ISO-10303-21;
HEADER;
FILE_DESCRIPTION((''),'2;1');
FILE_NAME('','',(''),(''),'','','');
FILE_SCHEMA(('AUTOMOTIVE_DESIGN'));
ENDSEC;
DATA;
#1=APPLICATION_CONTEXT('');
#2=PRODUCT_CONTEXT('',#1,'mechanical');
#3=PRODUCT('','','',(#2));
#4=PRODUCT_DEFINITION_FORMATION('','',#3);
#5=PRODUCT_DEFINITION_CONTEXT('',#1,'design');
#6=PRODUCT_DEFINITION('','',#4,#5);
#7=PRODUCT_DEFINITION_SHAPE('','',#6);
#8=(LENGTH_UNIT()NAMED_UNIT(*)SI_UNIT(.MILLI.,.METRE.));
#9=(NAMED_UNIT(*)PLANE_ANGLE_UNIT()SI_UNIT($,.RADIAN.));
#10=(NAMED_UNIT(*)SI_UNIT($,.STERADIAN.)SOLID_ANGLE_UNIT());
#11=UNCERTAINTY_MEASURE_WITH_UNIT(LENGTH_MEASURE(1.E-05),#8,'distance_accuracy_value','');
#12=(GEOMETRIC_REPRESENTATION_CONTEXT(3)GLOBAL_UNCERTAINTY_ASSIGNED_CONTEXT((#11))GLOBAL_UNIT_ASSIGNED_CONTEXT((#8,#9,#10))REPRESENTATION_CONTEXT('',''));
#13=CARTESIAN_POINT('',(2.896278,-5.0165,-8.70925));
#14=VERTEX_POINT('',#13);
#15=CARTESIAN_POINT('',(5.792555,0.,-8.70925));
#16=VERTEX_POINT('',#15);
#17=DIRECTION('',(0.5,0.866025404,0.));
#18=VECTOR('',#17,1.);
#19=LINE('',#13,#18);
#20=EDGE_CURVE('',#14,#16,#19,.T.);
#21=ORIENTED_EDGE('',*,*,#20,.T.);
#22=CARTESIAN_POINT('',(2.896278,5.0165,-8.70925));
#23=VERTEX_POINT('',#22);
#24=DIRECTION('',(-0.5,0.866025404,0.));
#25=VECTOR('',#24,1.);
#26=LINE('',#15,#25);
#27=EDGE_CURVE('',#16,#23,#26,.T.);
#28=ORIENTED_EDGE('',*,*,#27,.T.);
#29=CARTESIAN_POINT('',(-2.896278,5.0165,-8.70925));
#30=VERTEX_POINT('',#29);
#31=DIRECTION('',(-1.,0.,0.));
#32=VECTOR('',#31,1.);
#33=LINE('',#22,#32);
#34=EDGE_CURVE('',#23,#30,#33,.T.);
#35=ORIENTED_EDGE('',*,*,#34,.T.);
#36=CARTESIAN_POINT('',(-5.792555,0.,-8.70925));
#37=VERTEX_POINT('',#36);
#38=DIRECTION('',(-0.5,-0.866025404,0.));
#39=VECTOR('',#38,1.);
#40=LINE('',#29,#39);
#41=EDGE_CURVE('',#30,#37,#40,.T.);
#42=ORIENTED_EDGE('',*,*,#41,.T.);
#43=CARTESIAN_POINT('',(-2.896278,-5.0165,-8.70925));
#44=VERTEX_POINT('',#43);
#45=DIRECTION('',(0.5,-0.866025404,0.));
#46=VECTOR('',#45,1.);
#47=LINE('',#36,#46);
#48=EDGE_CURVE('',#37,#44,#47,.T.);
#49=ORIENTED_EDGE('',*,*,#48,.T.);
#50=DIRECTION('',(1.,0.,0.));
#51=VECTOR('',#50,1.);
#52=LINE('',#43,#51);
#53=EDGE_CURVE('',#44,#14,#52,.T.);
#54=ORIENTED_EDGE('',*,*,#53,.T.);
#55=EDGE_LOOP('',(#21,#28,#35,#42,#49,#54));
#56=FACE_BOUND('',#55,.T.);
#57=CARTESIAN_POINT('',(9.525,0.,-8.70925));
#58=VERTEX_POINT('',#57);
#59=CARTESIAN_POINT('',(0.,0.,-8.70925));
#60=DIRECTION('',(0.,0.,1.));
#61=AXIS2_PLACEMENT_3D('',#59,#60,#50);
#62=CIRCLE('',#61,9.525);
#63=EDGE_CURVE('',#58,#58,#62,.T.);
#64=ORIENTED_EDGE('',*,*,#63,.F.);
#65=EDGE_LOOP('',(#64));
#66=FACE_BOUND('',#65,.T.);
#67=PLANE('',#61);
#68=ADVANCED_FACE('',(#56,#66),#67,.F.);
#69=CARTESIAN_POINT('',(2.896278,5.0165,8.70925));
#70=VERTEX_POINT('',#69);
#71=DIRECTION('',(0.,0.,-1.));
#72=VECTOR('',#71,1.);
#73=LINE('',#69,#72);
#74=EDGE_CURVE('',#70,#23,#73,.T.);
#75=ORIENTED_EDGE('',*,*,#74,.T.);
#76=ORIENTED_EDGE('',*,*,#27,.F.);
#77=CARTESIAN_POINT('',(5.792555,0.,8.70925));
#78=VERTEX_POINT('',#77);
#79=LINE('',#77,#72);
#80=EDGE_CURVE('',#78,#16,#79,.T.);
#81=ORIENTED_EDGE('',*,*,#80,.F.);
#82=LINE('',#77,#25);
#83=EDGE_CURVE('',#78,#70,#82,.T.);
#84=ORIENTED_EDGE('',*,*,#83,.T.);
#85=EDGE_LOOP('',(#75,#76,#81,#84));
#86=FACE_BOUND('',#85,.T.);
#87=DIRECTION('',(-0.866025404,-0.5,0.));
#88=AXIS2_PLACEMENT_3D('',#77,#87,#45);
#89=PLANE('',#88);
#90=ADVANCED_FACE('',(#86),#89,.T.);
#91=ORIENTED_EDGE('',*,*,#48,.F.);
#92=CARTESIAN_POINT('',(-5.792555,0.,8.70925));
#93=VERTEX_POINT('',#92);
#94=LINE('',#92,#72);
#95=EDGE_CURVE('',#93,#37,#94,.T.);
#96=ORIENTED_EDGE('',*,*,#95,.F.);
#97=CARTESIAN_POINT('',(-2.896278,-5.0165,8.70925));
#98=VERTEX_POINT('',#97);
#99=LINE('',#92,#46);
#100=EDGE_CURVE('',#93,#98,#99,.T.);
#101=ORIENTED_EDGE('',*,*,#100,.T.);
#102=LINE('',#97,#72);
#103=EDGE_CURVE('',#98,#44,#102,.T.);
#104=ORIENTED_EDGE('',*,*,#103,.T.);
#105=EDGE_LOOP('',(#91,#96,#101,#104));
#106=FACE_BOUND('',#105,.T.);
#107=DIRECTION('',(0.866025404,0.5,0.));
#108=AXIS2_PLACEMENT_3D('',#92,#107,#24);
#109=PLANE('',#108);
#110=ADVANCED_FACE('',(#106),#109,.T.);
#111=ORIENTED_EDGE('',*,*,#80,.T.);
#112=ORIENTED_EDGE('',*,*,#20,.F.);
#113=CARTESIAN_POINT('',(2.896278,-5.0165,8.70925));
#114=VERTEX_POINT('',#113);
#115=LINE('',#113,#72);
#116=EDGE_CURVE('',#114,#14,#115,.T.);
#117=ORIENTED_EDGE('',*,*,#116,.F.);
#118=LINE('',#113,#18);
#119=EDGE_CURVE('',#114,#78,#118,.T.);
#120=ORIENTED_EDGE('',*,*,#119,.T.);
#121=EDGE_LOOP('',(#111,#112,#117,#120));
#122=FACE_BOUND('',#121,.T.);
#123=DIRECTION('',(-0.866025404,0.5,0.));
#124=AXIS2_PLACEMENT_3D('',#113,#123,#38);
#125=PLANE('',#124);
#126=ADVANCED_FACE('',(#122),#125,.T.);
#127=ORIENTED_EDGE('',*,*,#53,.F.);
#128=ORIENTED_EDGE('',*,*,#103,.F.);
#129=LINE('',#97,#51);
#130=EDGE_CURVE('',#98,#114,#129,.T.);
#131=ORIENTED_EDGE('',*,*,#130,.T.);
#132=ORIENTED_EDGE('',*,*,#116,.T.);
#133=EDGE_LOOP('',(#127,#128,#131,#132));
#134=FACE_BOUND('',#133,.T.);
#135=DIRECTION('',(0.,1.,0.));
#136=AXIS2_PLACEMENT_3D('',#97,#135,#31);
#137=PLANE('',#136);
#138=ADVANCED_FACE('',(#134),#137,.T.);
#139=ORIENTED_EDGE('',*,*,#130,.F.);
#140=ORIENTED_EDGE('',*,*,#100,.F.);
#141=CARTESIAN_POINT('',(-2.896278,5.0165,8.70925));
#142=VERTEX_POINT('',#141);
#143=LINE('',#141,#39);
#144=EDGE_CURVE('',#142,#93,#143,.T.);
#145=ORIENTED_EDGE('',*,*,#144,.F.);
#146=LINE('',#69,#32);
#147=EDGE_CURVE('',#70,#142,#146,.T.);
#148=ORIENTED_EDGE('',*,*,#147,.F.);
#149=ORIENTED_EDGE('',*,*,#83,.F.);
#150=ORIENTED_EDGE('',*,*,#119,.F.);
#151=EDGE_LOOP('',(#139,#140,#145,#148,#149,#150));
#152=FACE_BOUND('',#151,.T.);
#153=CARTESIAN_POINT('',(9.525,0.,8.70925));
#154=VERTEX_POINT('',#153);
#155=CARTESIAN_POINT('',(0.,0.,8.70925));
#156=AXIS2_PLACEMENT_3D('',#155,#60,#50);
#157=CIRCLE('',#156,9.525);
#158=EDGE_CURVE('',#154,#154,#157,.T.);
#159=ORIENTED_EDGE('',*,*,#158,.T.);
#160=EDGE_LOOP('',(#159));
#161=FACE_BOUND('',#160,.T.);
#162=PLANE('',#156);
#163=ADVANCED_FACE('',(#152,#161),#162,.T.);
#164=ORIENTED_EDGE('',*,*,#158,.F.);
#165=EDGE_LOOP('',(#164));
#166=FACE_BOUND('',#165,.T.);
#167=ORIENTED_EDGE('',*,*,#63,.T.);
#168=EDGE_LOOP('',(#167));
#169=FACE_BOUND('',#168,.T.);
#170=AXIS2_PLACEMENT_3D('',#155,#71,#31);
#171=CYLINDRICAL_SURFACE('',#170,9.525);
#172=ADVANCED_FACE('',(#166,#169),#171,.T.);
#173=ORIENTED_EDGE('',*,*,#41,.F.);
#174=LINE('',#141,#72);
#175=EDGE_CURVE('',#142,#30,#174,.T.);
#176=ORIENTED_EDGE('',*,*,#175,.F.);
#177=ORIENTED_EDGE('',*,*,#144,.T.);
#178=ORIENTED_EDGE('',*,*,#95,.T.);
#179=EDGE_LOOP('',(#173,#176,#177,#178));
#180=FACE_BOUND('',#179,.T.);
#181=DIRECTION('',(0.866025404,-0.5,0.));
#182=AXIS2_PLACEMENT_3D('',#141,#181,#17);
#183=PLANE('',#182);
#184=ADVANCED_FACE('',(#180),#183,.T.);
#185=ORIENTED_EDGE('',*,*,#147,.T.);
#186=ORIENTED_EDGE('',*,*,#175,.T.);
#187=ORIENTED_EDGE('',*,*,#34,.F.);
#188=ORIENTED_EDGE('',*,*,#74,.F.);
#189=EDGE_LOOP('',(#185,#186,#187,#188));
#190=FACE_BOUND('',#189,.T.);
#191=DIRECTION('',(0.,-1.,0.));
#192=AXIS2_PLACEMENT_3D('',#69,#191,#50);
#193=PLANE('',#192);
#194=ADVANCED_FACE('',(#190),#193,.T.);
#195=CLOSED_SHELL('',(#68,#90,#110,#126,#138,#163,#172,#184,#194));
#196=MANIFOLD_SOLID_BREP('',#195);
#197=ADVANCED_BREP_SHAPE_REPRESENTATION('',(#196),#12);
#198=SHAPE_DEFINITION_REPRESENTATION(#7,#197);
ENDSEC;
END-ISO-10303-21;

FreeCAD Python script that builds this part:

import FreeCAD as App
import Part
import Sketcher
Q = App.Units.Quantity


def add_polygon(sketch, points):
    """Adds a closed chain of lines whose ends are joined by coincident constraints."""
    first, n = sketch.GeometryCount, len(points)
    for a, b in zip(points, points[1:] + points[:1]):
        sketch.addGeometry(Part.LineSegment(App.Vector(*a, 0), App.Vector(*b, 0)), False)
    for i in range(n):
        sketch.addConstraint(Sketcher.Constraint("Coincident", first + i, 2, first + (i + 1) % n, 1))

doc = App.newDocument("Part")
body = doc.addObject("PartDesign::Body", "Body")

# Sketch on XY plane
sketch1 = body.newObject("Sketcher::SketchObject", "Sketch")
sketch1.AttachmentSupport = (doc.getObject("XY_Plane"), [""])
sketch1.MapMode = "FlatFace"
sketch1.addGeometry(Part.Circle(App.Vector(0, 0, 0), App.Vector(0, 0, 1), 10), False)  # 0
add_polygon(sketch1, [(-3, -5), (-6, 0), (-3, 5), (3, 5), (6, 0), (3, -5)])  # lines 1-6
sketch1.addConstraint(Sketcher.Constraint("Horizontal", 3))
sketch1.addConstraint(Sketcher.Constraint("Horizontal", 6))
sketch1.addConstraint(Sketcher.Constraint("Coincident", 0, 3, -1, 1))
sketch1.addConstraint(Sketcher.Constraint("Symmetric", 1, 2, 4, 2, -1, 1))
sketch1.addConstraint(Sketcher.Constraint("Symmetric", 2, 2, 5, 2, -1, 1))
sketch1.addConstraint(Sketcher.Constraint("PointOnObject", 1, 2, -1))
sketch1.addConstraint(Sketcher.Constraint("Parallel", 1, 4))
sketch1.addConstraint(Sketcher.Constraint("Vertical", 3, 2, 5, 2))
sketch1.addConstraint(Sketcher.Constraint("Diameter", 0, Q("0.75 in")))
sketch1.addConstraint(Sketcher.Constraint("Angle", 1, Q("120 deg")))
sketch1.addConstraint(Sketcher.Constraint("DistanceY", 5, 2, 3, 2, Q("0.395 in")))
sketch1.addConstraint(Sketcher.Constraint("DistanceX", 3, 1, 3, 2, 5.792555))
pad1 = body.newObject("PartDesign::Pad", "Pad")
pad1.Profile = sketch1
pad1.Length = 17.4185
pad1.Midplane = True

doc.recompute()
